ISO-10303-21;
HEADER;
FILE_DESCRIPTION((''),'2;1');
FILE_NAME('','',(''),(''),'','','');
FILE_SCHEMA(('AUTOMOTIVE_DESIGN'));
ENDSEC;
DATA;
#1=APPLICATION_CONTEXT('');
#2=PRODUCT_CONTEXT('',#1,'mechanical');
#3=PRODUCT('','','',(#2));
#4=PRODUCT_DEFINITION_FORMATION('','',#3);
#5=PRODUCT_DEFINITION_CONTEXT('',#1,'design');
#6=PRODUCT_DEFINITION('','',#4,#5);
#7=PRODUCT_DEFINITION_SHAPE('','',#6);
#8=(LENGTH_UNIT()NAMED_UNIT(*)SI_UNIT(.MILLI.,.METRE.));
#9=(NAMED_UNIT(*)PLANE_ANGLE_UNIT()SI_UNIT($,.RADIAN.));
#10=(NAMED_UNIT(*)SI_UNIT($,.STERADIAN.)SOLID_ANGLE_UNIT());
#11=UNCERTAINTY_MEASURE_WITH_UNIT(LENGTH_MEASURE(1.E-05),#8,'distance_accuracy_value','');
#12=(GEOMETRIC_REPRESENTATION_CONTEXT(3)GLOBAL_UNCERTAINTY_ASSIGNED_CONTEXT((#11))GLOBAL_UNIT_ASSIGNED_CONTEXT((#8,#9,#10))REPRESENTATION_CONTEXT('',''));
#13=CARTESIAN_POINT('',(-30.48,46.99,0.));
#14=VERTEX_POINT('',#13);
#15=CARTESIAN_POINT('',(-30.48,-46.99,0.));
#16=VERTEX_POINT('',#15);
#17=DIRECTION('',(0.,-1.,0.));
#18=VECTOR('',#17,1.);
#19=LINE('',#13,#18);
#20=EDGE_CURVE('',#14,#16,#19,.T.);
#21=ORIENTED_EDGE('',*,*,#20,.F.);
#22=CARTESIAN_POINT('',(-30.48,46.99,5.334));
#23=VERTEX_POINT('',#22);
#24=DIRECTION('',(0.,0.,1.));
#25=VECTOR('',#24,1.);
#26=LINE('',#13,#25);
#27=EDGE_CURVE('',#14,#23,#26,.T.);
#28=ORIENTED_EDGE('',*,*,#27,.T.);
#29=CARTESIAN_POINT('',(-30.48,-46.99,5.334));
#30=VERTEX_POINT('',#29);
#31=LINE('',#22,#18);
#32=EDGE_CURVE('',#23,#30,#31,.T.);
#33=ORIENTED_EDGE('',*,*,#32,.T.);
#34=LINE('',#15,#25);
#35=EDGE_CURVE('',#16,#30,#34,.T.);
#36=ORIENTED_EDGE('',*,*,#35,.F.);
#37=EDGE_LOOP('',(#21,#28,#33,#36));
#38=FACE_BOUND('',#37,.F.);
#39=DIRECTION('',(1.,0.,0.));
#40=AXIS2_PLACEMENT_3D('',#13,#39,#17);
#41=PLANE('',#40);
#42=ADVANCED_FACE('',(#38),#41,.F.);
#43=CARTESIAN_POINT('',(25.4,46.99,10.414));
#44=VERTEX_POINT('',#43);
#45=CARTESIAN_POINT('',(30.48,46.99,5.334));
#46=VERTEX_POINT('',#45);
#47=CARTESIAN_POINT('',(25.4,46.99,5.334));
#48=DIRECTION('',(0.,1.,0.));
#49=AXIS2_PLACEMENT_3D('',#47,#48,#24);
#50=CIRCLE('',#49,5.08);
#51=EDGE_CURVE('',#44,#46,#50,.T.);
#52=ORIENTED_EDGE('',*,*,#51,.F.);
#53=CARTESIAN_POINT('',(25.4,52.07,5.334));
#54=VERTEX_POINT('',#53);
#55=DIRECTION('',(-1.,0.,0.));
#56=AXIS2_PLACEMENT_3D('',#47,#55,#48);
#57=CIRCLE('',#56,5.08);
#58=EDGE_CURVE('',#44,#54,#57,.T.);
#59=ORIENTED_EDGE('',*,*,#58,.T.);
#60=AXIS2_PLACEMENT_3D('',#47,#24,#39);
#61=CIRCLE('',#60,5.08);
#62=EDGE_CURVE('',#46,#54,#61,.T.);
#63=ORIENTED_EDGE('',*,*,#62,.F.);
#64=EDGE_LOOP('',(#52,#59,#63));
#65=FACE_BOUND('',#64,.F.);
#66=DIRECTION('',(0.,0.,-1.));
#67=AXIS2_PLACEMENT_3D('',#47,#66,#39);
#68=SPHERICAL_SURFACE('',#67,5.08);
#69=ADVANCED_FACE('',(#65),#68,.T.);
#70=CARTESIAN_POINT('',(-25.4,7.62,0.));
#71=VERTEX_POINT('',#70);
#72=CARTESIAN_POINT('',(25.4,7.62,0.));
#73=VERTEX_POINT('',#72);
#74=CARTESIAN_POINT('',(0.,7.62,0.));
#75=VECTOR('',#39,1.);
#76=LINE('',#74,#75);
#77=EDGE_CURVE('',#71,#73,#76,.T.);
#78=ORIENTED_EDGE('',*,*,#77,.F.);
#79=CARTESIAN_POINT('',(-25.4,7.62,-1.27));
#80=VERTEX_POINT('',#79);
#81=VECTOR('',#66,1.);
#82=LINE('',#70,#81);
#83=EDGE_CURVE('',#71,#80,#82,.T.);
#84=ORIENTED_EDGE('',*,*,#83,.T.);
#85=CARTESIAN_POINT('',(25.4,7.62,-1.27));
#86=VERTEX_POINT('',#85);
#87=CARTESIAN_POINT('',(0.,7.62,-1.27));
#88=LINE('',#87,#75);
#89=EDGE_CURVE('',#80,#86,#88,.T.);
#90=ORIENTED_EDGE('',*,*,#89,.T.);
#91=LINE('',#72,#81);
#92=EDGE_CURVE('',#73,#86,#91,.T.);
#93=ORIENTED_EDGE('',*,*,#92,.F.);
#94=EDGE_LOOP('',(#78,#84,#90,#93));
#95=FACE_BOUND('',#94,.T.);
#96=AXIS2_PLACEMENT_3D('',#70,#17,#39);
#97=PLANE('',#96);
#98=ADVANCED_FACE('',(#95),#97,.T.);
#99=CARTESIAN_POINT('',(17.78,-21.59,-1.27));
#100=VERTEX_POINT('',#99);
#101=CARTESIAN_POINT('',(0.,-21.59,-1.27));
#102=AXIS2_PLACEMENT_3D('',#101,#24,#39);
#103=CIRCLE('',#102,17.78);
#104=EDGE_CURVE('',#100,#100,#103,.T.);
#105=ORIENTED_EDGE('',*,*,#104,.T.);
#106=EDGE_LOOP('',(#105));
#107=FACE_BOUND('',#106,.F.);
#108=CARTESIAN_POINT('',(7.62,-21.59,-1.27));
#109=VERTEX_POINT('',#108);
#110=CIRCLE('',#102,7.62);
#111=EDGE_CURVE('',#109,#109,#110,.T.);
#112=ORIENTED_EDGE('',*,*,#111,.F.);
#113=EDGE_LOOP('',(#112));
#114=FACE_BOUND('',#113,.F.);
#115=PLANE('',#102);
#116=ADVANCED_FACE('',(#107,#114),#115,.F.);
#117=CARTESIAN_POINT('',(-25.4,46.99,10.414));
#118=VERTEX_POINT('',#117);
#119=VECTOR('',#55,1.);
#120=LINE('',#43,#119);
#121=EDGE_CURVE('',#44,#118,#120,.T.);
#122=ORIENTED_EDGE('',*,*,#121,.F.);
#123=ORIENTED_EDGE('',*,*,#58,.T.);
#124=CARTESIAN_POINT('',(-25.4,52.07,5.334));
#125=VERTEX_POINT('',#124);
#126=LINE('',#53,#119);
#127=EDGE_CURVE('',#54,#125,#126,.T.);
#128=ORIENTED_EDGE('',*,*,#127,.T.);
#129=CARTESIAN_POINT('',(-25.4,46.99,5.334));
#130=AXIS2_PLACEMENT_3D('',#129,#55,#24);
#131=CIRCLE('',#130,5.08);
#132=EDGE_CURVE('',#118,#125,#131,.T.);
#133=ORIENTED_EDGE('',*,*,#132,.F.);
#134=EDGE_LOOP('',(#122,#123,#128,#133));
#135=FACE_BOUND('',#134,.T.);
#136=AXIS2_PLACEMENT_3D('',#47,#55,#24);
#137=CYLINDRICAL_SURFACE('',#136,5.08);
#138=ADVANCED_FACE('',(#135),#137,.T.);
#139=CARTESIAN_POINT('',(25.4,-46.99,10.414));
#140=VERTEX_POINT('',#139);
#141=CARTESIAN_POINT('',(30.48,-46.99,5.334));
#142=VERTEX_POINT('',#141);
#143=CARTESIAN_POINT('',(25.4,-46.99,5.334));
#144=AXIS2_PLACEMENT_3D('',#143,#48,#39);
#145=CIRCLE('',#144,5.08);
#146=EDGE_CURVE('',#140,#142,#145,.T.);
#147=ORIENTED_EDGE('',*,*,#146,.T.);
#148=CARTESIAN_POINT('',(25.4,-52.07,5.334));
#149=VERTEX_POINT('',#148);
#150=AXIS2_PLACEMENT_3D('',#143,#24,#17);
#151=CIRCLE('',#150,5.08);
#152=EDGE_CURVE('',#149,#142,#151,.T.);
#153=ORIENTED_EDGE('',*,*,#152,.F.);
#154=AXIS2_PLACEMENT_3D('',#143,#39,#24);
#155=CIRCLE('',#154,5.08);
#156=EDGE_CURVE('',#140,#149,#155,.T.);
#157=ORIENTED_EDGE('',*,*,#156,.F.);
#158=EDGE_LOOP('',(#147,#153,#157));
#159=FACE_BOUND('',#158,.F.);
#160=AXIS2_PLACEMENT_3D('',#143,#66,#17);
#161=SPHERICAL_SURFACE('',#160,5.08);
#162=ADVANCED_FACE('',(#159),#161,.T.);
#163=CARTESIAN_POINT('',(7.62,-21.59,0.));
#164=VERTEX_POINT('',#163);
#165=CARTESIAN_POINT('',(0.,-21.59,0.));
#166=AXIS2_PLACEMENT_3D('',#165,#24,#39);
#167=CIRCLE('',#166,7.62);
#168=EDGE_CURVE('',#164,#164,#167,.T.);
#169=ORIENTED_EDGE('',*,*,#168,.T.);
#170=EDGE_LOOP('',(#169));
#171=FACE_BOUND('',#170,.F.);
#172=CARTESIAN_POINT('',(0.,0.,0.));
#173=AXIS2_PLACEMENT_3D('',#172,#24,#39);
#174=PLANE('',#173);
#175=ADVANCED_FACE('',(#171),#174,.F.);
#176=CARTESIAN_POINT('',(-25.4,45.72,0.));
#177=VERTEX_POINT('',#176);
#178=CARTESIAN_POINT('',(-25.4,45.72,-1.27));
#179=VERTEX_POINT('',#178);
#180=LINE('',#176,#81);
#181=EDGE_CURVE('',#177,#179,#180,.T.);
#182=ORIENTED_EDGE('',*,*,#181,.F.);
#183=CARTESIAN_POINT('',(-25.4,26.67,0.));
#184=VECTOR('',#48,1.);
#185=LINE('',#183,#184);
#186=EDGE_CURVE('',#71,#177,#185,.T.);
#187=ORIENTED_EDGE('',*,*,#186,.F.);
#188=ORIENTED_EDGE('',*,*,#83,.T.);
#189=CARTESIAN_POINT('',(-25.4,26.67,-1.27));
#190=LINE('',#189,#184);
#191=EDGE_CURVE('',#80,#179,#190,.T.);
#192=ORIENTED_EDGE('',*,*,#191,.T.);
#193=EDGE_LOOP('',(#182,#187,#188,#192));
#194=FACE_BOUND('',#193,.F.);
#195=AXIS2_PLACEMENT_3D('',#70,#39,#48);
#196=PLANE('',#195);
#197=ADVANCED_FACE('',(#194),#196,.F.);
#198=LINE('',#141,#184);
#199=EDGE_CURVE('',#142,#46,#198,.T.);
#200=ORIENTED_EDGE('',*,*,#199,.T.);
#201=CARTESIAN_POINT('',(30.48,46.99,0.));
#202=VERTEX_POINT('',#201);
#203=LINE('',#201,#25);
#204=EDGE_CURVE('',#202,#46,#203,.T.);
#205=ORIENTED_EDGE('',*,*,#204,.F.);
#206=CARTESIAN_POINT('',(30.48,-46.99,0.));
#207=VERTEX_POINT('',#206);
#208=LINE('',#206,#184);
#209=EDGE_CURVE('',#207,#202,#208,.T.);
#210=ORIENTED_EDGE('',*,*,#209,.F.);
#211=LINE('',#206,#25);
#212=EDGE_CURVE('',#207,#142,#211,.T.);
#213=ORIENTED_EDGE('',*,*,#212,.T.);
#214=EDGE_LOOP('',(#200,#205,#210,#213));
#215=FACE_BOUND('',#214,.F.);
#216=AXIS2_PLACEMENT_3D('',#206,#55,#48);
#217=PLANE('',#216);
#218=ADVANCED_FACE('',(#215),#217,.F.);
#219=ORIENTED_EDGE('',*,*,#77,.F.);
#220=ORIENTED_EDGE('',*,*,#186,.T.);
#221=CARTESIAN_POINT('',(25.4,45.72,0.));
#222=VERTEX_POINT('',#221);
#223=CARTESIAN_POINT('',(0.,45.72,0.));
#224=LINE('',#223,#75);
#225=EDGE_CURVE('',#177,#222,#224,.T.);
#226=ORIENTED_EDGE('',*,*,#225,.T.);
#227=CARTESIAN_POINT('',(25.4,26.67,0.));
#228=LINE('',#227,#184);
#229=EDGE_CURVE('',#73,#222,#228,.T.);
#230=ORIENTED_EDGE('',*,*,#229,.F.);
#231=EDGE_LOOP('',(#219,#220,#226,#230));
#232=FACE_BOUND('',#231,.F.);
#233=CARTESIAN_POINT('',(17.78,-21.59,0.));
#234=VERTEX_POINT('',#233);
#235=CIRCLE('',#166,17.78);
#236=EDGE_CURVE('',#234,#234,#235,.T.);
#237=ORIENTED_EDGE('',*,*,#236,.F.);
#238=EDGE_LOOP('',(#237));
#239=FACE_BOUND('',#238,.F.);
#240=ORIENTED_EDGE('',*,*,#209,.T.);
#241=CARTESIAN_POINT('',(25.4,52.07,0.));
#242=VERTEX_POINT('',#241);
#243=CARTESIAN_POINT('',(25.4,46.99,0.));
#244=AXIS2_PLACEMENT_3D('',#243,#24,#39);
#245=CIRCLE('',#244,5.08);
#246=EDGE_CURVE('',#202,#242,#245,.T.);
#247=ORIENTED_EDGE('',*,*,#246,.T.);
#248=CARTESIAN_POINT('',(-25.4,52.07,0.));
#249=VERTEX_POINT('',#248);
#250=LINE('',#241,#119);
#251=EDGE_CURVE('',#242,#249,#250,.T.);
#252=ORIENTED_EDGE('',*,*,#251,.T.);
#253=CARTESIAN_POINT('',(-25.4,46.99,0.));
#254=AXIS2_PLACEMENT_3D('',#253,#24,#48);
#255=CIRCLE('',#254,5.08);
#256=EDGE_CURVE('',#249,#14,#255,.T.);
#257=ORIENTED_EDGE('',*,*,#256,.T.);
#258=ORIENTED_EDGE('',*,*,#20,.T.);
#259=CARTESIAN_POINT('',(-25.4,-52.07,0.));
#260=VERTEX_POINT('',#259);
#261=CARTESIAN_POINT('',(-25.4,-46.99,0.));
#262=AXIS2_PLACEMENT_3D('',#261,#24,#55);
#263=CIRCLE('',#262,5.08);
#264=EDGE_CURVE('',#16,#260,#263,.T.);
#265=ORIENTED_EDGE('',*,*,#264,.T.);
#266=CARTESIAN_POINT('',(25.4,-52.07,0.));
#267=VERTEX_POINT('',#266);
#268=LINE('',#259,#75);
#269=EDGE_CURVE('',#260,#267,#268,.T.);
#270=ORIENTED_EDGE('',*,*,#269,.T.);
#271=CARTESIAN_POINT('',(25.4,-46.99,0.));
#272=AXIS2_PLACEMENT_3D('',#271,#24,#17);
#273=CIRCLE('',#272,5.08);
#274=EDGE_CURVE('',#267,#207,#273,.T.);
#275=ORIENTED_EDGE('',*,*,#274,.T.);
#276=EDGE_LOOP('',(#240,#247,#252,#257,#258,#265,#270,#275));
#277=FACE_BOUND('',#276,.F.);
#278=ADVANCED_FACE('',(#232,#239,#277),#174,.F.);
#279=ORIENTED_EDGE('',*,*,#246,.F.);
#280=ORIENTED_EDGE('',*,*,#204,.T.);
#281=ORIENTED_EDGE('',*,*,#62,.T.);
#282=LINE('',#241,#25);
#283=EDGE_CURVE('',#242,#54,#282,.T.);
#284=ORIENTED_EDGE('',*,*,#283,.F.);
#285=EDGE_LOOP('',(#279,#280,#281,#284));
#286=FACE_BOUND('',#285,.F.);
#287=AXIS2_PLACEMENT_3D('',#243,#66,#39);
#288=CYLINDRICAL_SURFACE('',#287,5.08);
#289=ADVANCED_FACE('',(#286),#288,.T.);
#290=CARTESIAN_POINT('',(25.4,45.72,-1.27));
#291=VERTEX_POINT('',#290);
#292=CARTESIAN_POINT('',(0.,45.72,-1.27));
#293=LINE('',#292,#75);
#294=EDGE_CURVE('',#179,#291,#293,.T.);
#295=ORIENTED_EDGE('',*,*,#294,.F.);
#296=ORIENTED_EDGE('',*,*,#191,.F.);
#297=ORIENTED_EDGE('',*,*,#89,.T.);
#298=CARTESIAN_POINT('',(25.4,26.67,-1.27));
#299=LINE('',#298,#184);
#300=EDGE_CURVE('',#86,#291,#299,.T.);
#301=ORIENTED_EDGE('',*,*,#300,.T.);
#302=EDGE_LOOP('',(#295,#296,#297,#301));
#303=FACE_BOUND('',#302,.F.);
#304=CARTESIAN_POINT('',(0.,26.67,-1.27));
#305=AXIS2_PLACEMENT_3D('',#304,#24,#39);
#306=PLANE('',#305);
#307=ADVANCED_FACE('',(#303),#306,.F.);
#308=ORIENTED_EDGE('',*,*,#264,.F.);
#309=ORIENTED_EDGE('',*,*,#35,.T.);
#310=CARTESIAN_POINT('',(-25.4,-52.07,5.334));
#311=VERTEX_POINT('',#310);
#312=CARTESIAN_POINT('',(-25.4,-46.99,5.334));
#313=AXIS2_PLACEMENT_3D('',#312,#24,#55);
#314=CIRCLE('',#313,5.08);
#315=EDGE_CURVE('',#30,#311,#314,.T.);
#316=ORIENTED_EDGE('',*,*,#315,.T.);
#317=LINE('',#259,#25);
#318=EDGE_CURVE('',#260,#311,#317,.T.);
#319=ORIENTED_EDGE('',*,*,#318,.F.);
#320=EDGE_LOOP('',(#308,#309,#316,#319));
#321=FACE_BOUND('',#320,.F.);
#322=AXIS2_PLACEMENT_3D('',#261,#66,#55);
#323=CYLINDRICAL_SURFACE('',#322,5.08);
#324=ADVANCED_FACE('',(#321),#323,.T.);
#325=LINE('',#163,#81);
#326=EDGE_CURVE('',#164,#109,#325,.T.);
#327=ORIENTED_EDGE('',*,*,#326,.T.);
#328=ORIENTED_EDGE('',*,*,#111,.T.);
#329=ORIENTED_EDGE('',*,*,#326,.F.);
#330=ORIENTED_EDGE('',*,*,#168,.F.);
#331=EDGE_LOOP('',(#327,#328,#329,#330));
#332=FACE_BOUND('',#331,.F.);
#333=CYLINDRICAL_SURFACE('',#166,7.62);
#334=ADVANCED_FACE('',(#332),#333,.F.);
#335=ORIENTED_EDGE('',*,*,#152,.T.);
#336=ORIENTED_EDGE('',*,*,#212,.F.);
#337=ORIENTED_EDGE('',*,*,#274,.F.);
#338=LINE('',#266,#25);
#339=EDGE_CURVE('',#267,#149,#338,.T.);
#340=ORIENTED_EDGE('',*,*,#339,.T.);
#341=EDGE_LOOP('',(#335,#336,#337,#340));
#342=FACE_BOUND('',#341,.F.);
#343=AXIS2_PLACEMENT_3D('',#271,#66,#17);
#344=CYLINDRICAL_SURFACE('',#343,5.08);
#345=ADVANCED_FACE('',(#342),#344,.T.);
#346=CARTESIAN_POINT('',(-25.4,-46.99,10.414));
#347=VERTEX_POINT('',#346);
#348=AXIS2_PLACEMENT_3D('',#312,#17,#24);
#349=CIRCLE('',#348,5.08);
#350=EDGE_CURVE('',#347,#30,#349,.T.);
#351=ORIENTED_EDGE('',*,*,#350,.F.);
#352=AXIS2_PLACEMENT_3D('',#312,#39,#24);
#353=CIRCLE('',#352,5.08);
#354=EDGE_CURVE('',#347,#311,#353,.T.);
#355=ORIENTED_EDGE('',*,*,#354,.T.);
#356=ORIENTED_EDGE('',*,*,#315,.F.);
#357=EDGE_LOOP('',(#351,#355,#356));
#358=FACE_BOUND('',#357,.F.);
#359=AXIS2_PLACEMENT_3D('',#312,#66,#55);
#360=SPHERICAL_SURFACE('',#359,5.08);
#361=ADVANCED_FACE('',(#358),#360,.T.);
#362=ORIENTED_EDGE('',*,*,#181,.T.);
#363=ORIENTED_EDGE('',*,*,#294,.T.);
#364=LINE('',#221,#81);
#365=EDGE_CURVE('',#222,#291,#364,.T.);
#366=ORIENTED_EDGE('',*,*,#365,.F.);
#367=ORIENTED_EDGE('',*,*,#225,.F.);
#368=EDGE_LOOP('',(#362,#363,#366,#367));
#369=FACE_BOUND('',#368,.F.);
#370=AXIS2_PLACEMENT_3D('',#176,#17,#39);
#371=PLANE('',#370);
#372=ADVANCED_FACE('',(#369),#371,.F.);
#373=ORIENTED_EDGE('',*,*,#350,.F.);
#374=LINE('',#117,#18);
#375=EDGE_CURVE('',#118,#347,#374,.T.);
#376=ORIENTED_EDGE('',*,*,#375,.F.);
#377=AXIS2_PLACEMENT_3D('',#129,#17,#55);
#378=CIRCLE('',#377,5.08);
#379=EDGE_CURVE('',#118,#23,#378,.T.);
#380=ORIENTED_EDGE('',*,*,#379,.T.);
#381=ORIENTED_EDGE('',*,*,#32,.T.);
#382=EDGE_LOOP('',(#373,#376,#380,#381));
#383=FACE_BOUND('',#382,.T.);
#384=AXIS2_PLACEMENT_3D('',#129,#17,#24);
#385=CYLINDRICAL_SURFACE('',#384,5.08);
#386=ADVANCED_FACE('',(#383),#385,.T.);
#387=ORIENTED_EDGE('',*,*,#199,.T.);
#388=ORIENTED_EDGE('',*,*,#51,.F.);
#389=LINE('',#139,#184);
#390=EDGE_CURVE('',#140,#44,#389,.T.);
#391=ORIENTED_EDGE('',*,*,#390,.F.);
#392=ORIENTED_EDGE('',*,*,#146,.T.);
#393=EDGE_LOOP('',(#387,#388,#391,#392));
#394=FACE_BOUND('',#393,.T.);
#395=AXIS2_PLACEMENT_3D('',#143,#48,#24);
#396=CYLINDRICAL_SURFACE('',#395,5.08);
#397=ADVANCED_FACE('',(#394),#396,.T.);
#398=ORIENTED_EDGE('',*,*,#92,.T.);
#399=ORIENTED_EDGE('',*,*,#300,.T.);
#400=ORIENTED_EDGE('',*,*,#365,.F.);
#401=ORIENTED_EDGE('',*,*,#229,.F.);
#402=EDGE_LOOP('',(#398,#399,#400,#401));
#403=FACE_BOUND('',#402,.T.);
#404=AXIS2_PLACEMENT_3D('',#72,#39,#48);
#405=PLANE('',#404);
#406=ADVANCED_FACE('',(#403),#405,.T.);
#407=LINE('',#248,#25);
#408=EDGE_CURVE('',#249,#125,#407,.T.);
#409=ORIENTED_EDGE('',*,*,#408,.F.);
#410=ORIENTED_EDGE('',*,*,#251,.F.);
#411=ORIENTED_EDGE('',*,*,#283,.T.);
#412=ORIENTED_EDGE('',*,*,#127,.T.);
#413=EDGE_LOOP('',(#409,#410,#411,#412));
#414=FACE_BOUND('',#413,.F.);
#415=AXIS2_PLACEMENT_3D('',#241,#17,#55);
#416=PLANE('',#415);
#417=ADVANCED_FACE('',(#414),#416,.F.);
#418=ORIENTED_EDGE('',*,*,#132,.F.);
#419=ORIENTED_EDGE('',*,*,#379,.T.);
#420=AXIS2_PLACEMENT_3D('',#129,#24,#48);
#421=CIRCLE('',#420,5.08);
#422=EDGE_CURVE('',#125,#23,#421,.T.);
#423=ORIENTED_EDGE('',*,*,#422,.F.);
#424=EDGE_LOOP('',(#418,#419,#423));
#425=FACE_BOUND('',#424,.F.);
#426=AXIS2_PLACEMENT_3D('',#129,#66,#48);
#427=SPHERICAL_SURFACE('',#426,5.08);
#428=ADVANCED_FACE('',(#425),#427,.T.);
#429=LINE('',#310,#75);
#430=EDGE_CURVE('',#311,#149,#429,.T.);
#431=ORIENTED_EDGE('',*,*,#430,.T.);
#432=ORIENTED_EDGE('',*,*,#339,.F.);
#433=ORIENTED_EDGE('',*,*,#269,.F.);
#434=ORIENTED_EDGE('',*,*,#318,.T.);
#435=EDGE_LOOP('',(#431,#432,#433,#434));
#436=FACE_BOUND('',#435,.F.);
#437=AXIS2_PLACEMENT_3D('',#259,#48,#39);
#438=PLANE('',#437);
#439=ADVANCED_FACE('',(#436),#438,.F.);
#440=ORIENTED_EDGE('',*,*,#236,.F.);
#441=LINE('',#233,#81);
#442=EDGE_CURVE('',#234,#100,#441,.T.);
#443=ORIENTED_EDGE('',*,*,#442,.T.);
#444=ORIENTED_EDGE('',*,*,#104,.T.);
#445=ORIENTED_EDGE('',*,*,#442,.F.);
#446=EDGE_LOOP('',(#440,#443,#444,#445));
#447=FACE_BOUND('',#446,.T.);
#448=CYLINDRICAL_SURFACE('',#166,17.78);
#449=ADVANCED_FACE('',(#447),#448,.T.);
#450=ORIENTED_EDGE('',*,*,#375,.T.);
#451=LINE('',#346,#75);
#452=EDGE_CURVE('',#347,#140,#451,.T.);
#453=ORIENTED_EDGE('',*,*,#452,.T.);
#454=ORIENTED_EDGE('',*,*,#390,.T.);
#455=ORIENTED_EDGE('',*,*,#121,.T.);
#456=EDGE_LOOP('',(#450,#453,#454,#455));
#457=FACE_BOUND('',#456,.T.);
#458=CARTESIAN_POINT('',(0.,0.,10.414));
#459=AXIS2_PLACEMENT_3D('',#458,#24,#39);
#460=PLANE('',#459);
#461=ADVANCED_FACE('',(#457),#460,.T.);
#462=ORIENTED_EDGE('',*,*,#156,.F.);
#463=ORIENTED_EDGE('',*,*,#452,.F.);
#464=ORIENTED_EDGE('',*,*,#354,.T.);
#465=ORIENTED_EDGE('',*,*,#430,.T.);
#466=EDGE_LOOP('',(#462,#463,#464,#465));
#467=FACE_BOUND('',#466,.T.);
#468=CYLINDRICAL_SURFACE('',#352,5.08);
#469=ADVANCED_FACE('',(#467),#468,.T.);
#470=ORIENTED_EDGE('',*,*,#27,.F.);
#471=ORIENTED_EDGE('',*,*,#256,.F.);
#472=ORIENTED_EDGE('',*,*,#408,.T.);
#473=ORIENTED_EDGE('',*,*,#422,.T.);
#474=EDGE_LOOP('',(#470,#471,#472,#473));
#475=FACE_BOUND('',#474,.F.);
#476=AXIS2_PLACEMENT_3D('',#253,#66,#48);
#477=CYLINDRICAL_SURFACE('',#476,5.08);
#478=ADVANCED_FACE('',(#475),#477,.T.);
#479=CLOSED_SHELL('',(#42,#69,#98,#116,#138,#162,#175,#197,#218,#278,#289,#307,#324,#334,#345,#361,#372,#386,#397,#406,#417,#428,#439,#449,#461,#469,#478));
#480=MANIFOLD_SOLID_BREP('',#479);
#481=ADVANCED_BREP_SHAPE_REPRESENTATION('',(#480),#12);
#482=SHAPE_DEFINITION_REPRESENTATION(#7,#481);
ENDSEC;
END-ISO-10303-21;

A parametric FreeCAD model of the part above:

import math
import FreeCAD as App
import Part
import Sketcher
from FreeCAD import Vector
Q = App.Units.Quantity


def edges_at(feature, points):
    """Names of the edges that pass closest to the given points."""
    edges = feature.Shape.Edges
    near = lambda p: min(range(len(edges)), key=lambda i: edges[i].distToShape(Part.Vertex(*p))[0])
    return sorted({f"Edge{near(p) + 1}" for p in points})

doc = App.newDocument("Part")
body = doc.addObject("PartDesign::Body", "Body")

sketch1 = doc.addObject("Sketcher::SketchObject", "Sketch")
body.addObject(sketch1)
sketch1.AttachmentSupport = (doc.XY_Plane, [""])
sketch1.MapMode = "FlatFace"
sketch1.addGeometry([
    Part.LineSegment(Vector(25, 52, 0), Vector(-25, 52, 0)),
    Part.ArcOfCircle(Part.Circle(Vector(-25, 47, 0), Vector(0, 0, 1), 5), math.radians(90), math.radians(180)),
    Part.LineSegment(Vector(-30, 47, 0), Vector(-30, -47, 0)),
    Part.ArcOfCircle(Part.Circle(Vector(-25, -47, 0), Vector(0, 0, 1), 5), math.radians(180), math.radians(270)),
    Part.LineSegment(Vector(-25, -52, 0), Vector(25, -52, 0)),
    Part.ArcOfCircle(Part.Circle(Vector(25, -47, 0), Vector(0, 0, 1), 5), math.radians(-90), math.radians(0)),
    Part.LineSegment(Vector(30, -47, 0), Vector(30, 47, 0)),
    Part.ArcOfCircle(Part.Circle(Vector(25, 47, 0), Vector(0, 0, 1), 5), math.radians(0), math.radians(90)),
], False)
sketch1.addConstraint([
    Sketcher.Constraint("Tangent", 0, 2, 1, 1),
    Sketcher.Constraint("Tangent", 1, 2, 2, 1),
    Sketcher.Constraint("Tangent", 2, 2, 3, 1),
    Sketcher.Constraint("Tangent", 3, 2, 4, 1),
    Sketcher.Constraint("Tangent", 4, 2, 5, 1),
    Sketcher.Constraint("Tangent", 5, 2, 6, 1),
    Sketcher.Constraint("Tangent", 6, 2, 7, 1),
    Sketcher.Constraint("Tangent", 7, 2, 0, 1),
    Sketcher.Constraint("Horizontal", 0),
    Sketcher.Constraint("Vertical", 2),
    Sketcher.Constraint("Horizontal", 4),
    Sketcher.Constraint("Vertical", 6),
    Sketcher.Constraint("Equal", 1, 3),
    Sketcher.Constraint("Equal", 3, 5),
    Sketcher.Constraint("Equal", 5, 7),
    Sketcher.Constraint("Symmetric", 1, 3, 5, 3, -1, 1),
    Sketcher.Constraint("Radius", 1, Q("0.2 in")),
    Sketcher.Constraint("DistanceX", 0, 2, 0, 1, Q("2 in")),
    Sketcher.Constraint("DistanceY", 2, 2, 2, 1, Q("3.7 in")),
])
pad1 = doc.addObject("PartDesign::Pad", "Pad")
body.addObject(pad1)
pad1.Profile = sketch1
pad1.Length = Q("0.41 in")

sketch2 = doc.addObject("Sketcher::SketchObject", "Sketch001")
body.addObject(sketch2)
sketch2.AttachmentSupport = (doc.XY_Plane, [""])
sketch2.MapMode = "FlatFace"
sketch2.addGeometry([
    Part.Circle(Vector(0, -22, 0), Vector(0, 0, 1), 18),
    Part.Circle(Vector(0, -22, 0), Vector(0, 0, 1), 8),
    Part.LineSegment(Vector(-25, 46, 0), Vector(-25, 8, 0)),
    Part.LineSegment(Vector(-25, 8, 0), Vector(25, 8, 0)),
    Part.LineSegment(Vector(25, 8, 0), Vector(25, 46, 0)),
    Part.LineSegment(Vector(25, 46, 0), Vector(-25, 46, 0)),
], False)
sketch2.addConstraint([
    Sketcher.Constraint("Coincident", 2, 2, 3, 1),
    Sketcher.Constraint("Coincident", 3, 2, 4, 1),
    Sketcher.Constraint("Coincident", 4, 2, 5, 1),
    Sketcher.Constraint("Coincident", 5, 2, 2, 1),
    Sketcher.Constraint("Vertical", 2),
    Sketcher.Constraint("Horizontal", 3),
    Sketcher.Constraint("Vertical", 4),
    Sketcher.Constraint("Horizontal", 5),
    Sketcher.Constraint("Coincident", 1, 3, 0, 3),
    Sketcher.Constraint("PointOnObject", 0, 3, -2),
    Sketcher.Constraint("Diameter", 0, Q("1.4 in")),
    Sketcher.Constraint("Diameter", 1, Q("0.6 in")),
    Sketcher.Constraint("DistanceX", 3, 1, 3, 2, Q("2 in")),
    Sketcher.Constraint("DistanceY", 2, 2, 2, 1, Q("1.5 in")),
    Sketcher.Constraint("DistanceX", 2, 2, -1, 1, Q("1 in")),
    Sketcher.Constraint("DistanceY", -1, 1, 2, 2, Q("0.3 in")),
    Sketcher.Constraint("DistanceY", 0, 3, -1, 1, Q("0.85 in")),
])
pad2 = doc.addObject("PartDesign::Pad", "Pad001")
body.addObject(pad2)
pad2.Profile = sketch2
pad2.Length = Q("0.05 in")
pad2.Reversed = True
doc.recompute()

fillet = doc.addObject("PartDesign::Fillet", "Fillet")
body.addObject(fillet)
fillet.Base = (pad2, edges_at(pad2, [(0, -52.07, 10.414), (0, 52.07, 10.414)]))
fillet.Radius = Q("0.2 in")

doc.recompute()
